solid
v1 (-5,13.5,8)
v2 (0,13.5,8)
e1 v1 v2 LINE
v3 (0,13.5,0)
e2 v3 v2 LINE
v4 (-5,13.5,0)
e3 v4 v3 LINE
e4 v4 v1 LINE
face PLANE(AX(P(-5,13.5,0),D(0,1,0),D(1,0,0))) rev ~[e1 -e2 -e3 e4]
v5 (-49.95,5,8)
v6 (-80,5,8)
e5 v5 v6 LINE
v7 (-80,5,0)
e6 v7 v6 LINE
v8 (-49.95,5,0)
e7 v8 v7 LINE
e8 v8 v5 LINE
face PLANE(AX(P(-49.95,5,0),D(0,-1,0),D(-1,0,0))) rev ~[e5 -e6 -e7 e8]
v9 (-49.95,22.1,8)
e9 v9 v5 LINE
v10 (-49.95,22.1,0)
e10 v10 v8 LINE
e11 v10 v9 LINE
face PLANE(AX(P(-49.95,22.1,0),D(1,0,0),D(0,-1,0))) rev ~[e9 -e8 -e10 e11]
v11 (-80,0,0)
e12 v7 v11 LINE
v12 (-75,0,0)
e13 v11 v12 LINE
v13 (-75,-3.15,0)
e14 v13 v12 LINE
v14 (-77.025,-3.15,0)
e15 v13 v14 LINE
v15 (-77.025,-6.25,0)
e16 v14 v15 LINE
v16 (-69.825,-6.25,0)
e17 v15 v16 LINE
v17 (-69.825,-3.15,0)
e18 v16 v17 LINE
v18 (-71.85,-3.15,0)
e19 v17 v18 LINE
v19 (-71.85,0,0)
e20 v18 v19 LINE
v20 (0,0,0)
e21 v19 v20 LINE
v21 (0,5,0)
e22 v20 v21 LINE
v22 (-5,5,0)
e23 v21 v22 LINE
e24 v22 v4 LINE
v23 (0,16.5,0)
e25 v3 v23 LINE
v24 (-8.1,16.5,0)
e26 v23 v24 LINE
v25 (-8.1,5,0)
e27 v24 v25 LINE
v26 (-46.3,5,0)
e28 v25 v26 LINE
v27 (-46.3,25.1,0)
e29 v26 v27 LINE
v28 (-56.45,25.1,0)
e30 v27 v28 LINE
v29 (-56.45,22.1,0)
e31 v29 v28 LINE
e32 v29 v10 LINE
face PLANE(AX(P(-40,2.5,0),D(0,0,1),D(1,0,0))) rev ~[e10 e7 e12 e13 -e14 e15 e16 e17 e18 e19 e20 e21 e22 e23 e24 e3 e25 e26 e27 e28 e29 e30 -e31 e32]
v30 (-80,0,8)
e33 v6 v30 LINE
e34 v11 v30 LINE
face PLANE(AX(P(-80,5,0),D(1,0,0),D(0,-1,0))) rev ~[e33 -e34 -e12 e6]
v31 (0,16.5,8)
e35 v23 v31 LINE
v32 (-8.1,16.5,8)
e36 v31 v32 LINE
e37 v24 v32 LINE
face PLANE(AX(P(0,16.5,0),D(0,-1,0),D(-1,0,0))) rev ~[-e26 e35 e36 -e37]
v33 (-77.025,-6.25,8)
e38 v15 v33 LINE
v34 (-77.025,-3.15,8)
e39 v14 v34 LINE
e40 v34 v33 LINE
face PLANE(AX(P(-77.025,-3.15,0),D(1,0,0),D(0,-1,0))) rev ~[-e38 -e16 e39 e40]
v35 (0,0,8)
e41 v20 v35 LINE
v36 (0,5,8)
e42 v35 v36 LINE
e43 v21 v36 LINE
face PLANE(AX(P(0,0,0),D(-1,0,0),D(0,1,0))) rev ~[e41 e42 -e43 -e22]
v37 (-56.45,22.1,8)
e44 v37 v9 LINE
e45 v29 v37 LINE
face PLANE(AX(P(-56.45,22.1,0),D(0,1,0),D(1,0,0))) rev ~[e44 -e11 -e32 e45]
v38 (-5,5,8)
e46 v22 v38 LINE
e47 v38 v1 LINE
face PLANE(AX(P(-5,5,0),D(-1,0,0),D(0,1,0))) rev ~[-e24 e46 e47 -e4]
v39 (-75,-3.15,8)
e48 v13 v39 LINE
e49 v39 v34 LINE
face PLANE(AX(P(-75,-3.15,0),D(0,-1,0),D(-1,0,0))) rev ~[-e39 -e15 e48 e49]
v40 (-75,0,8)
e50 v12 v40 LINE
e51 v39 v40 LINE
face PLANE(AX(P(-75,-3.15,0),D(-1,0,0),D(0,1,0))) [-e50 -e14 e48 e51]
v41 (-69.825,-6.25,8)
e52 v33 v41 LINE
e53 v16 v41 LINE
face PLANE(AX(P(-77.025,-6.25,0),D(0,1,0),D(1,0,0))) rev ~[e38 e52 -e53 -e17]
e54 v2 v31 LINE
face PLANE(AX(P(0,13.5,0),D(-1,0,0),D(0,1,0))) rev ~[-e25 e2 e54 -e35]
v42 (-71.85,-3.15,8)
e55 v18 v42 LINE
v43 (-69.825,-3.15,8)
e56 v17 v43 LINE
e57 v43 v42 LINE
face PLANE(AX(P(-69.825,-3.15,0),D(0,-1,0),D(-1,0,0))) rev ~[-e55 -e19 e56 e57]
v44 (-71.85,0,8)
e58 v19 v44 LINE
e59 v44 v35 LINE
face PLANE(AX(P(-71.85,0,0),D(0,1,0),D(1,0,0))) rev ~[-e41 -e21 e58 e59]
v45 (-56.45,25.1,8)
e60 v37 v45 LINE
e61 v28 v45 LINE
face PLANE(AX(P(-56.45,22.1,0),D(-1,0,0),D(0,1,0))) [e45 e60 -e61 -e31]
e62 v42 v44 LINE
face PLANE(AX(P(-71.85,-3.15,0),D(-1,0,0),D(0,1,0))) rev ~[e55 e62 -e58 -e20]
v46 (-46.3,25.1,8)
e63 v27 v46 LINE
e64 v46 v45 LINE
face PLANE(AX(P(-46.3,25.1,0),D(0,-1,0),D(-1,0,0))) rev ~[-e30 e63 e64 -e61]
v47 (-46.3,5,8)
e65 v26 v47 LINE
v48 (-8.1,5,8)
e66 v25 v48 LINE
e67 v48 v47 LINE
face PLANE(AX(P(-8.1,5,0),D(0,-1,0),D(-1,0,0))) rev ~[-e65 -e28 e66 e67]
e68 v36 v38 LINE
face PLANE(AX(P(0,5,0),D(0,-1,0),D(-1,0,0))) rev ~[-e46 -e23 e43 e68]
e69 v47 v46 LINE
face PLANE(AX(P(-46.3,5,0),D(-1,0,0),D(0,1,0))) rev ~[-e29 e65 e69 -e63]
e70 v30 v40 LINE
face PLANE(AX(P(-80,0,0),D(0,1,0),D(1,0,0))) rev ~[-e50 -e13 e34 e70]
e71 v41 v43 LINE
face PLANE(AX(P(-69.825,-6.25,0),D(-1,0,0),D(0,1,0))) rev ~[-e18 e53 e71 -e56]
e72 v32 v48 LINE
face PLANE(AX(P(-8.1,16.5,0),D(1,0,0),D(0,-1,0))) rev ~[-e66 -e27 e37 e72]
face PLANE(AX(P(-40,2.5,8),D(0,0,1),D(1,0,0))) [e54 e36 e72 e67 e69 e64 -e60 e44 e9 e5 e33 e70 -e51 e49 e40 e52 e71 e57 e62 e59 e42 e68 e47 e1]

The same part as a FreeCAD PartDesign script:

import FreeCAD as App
import Part
import Sketcher
from FreeCAD import Vector

doc = App.newDocument("Part")
params = doc.addObject("Spreadsheet::Sheet", "Params")
for row, (alias, value) in enumerate([
    ("sketch1_width", "5 mm"),
    ("sketch1_height", "3 mm"),
    ("sketch1_width2", "8.1 mm"),
    ("sketch1_width3", "38.2 mm"),
    ("sketch1_width4", "6.5 mm"),
    ("pad1_length", "8 mm"),
], start=1):
    params.set(f"A{row}", alias)
    params.set(f"B{row}", "=" + value)
    params.setAlias(f"B{row}", alias)

body = doc.addObject("PartDesign::Body", "Body")

# Sketch on XY plane
sketch1 = doc.addObject("Sketcher::SketchObject", "Sketch")
body.addObject(sketch1)
sketch1.AttachmentSupport = (doc.XY_Plane, [""])
sketch1.MapMode = "FlatFace"
sketch1.addGeometry(Part.LineSegment(Vector(0, 0, 0), Vector(0, 5, 0)), False)
sketch1.addGeometry(Part.LineSegment(Vector(0, 5, 0), Vector(-5, 5, 0)), False)
sketch1.addGeometry(Part.LineSegment(Vector(-5, 5, 0), Vector(-5, 13.5, 0)), False)
sketch1.addGeometry(Part.LineSegment(Vector(-5, 13.5, 0), Vector(0, 13.5, 0)), False)
sketch1.addGeometry(Part.LineSegment(Vector(0, 13.5, 0), Vector(0, 16.5, 0)), False)
sketch1.addGeometry(Part.LineSegment(Vector(0, 16.5, 0), Vector(-8.1, 16.5, 0)), False)
sketch1.addGeometry(Part.LineSegment(Vector(-8.1, 16.5, 0), Vector(-8.1, 5, 0)), False)
sketch1.addGeometry(Part.LineSegment(Vector(-8.1, 5, 0), Vector(-46.3, 5, 0)), False)
sketch1.addGeometry(Part.LineSegment(Vector(-46.3, 5, 0), Vector(-46.3, 25.1, 0)), False)
sketch1.addGeometry(Part.LineSegment(Vector(-46.3, 25.1, 0), Vector(-56.45, 25.1, 0)), False)
sketch1.addGeometry(Part.LineSegment(Vector(-56.45, 25.1, 0), Vector(-56.45, 22.1, 0)), False)
sketch1.addGeometry(Part.LineSegment(Vector(-56.45, 22.1, 0), Vector(-49.95, 22.1, 0)), False)
sketch1.addGeometry(Part.LineSegment(Vector(-49.95, 22.1, 0), Vector(-49.95, 5, 0)), False)
sketch1.addGeometry(Part.LineSegment(Vector(-49.95, 5, 0), Vector(-80, 5, 0)), False)
sketch1.addGeometry(Part.LineSegment(Vector(-80, 5, 0), Vector(-80, 0, 0)), False)
sketch1.addGeometry(Part.LineSegment(Vector(-80, 0, 0), Vector(-75, 0, 0)), False)
sketch1.addGeometry(Part.LineSegment(Vector(-75, 0, 0), Vector(-75, -3.15, 0)), False)
sketch1.addGeometry(Part.LineSegment(Vector(-75, -3.15, 0), Vector(-77.025, -3.15, 0)), False)
sketch1.addGeometry(Part.LineSegment(Vector(-77.025, -3.15, 0), Vector(-77.025, -6.25, 0)), False)
sketch1.addGeometry(Part.LineSegment(Vector(-77.025, -6.25, 0), Vector(-69.825, -6.25, 0)), False)
sketch1.addGeometry(Part.LineSegment(Vector(-69.825, -6.25, 0), Vector(-69.825, -3.15, 0)), False)
sketch1.addGeometry(Part.LineSegment(Vector(-69.825, -3.15, 0), Vector(-71.85, -3.15, 0)), False)
sketch1.addGeometry(Part.LineSegment(Vector(-71.85, -3.15, 0), Vector(-71.85, 0, 0)), False)
sketch1.addGeometry(Part.LineSegment(Vector(-71.85, 0, 0), Vector(0, 0, 0)), False)
sketch1.addConstraint(Sketcher.Constraint("Coincident", 0, 2, 1, 1))
sketch1.addConstraint(Sketcher.Constraint("Coincident", 1, 2, 2, 1))
sketch1.addConstraint(Sketcher.Constraint("Coincident", 2, 2, 3, 1))
sketch1.addConstraint(Sketcher.Constraint("Coincident", 3, 2, 4, 1))
sketch1.addConstraint(Sketcher.Constraint("Coincident", 4, 2, 5, 1))
sketch1.addConstraint(Sketcher.Constraint("Coincident", 5, 2, 6, 1))
sketch1.addConstraint(Sketcher.Constraint("Coincident", 6, 2, 7, 1))
sketch1.addConstraint(Sketcher.Constraint("Coincident", 7, 2, 8, 1))
sketch1.addConstraint(Sketcher.Constraint("Coincident", 8, 2, 9, 1))
sketch1.addConstraint(Sketcher.Constraint("Coincident", 9, 2, 10, 1))
sketch1.addConstraint(Sketcher.Constraint("Coincident", 10, 2, 11, 1))
sketch1.addConstraint(Sketcher.Constraint("Coincident", 11, 2, 12, 1))
sketch1.addConstraint(Sketcher.Constraint("Coincident", 12, 2, 13, 1))
sketch1.addConstraint(Sketcher.Constraint("Coincident", 13, 2, 14, 1))
sketch1.addConstraint(Sketcher.Constraint("Coincident", 14, 2, 15, 1))
sketch1.addConstraint(Sketcher.Constraint("Coincident", 15, 2, 16, 1))
sketch1.addConstraint(Sketcher.Constraint("Coincident", 16, 2, 17, 1))
sketch1.addConstraint(Sketcher.Constraint("Coincident", 17, 2, 18, 1))
sketch1.addConstraint(Sketcher.Constraint("Coincident", 18, 2, 19, 1))
sketch1.addConstraint(Sketcher.Constraint("Coincident", 19, 2, 20, 1))
sketch1.addConstraint(Sketcher.Constraint("Coincident", 20, 2, 21, 1))
sketch1.addConstraint(Sketcher.Constraint("Coincident", 21, 2, 22, 1))
sketch1.addConstraint(Sketcher.Constraint("Coincident", 22, 2, 23, 1))
sketch1.addConstraint(Sketcher.Constraint("Coincident", 23, 2, 0, 1))
sketch1.addConstraint(Sketcher.Constraint("Vertical", 0))
sketch1.addConstraint(Sketcher.Constraint("Horizontal", 1))
sketch1.addConstraint(Sketcher.Constraint("Vertical", 2))
sketch1.addConstraint(Sketcher.Constraint("Horizontal", 3))
sketch1.addConstraint(Sketcher.Constraint("Vertical", 4))
sketch1.addConstraint(Sketcher.Constraint("Horizontal", 5))
sketch1.addConstraint(Sketcher.Constraint("Vertical", 6))
sketch1.addConstraint(Sketcher.Constraint("Horizontal", 7))
sketch1.addConstraint(Sketcher.Constraint("Vertical", 8))
sketch1.addConstraint(Sketcher.Constraint("Horizontal", 9))
sketch1.addConstraint(Sketcher.Constraint("Vertical", 10))
sketch1.addConstraint(Sketcher.Constraint("Horizontal", 11))
sketch1.addConstraint(Sketcher.Constraint("Vertical", 12))
sketch1.addConstraint(Sketcher.Constraint("Horizontal", 13))
sketch1.addConstraint(Sketcher.Constraint("Vertical", 14))
sketch1.addConstraint(Sketcher.Constraint("Horizontal", 15))
sketch1.addConstraint(Sketcher.Constraint("Vertical", 16))
sketch1.addConstraint(Sketcher.Constraint("Horizontal", 17))
sketch1.addConstraint(Sketcher.Constraint("Vertical", 18))
sketch1.addConstraint(Sketcher.Constraint("Horizontal", 19))
sketch1.addConstraint(Sketcher.Constraint("Vertical", 20))
sketch1.addConstraint(Sketcher.Constraint("Horizontal", 21))
sketch1.addConstraint(Sketcher.Constraint("Vertical", 22))
sketch1.addConstraint(Sketcher.Constraint("Horizontal", 23))
sketch1.addConstraint(Sketcher.Constraint("Coincident", 23, 2, -1, 1))
sketch1.addConstraint(Sketcher.Constraint("PointOnObject", 3, 2, -2))
sketch1.addConstraint(Sketcher.Constraint("PointOnObject", 14, 2, -1))
sketch1.addConstraint(Sketcher.Constraint("Horizontal", 1, 2, 6, 2))
sketch1.addConstraint(Sketcher.Constraint("Horizontal", 7, 2, 12, 2))
sketch1.addConstraint(Sketcher.Constraint("Horizontal", 17, 2, 20, 2))
sketch1.addConstraint(Sketcher.Constraint("Equal", 3, 15))
sketch1.addConstraint(Sketcher.Constraint("Equal", 17, 21))
sketch1.addConstraint(Sketcher.Constraint("Equal", 15, 0))
sketch1.addConstraint(Sketcher.Constraint("Equal", 4, 10))
sketch1.addConstraint(Sketcher.Constraint("DistanceX", 1, 2, 1, 1, 5.0))
sketch1.addConstraint(Sketcher.Constraint("DistanceY", 4, 1, 4, 2, 3.0))
sketch1.addConstraint(Sketcher.Constraint("DistanceX", 5, 2, 5, 1, 8.1))
sketch1.addConstraint(Sketcher.Constraint("DistanceX", 7, 2, 7, 1, 38.2))
sketch1.addConstraint(Sketcher.Constraint("DistanceX", 11, 1, 11, 2, 6.5))
sketch1.addConstraint(Sketcher.Constraint("DistanceX", 19, 1, 19, 2, 7.2))
sketch1.addConstraint(Sketcher.Constraint("DistanceY", 2, 1, 2, 2, 8.5))
sketch1.addConstraint(Sketcher.Constraint("DistanceY", 8, 1, 8, 2, 20.1))
sketch1.addConstraint(Sketcher.Constraint("DistanceY", 18, 2, 18, 1, 3.1))
sketch1.addConstraint(Sketcher.Constraint("DistanceX", 13, 2, -1, 1, 80.0))
sketch1.addConstraint(Sketcher.Constraint("DistanceX", 9, 2, 9, 1, 10.15))
sketch1.addConstraint(Sketcher.Constraint("DistanceX", 23, 1, 23, 2, 71.85))
sketch1.addConstraint(Sketcher.Constraint("DistanceY", 16, 2, 16, 1, 3.15))
sketch1.setExpression("Constraints[58]", "Params.sketch1_width")
sketch1.setExpression("Constraints[59]", "Params.sketch1_height")
sketch1.setExpression("Constraints[60]", "Params.sketch1_width2")
sketch1.setExpression("Constraints[61]", "Params.sketch1_width3")
sketch1.setExpression("Constraints[62]", "Params.sketch1_width4")
pad1 = doc.addObject("PartDesign::Pad", "Pad")
body.addObject(pad1)
pad1.Profile = sketch1
pad1.setExpression("Length", "Params.pad1_length")

doc.recompute()
